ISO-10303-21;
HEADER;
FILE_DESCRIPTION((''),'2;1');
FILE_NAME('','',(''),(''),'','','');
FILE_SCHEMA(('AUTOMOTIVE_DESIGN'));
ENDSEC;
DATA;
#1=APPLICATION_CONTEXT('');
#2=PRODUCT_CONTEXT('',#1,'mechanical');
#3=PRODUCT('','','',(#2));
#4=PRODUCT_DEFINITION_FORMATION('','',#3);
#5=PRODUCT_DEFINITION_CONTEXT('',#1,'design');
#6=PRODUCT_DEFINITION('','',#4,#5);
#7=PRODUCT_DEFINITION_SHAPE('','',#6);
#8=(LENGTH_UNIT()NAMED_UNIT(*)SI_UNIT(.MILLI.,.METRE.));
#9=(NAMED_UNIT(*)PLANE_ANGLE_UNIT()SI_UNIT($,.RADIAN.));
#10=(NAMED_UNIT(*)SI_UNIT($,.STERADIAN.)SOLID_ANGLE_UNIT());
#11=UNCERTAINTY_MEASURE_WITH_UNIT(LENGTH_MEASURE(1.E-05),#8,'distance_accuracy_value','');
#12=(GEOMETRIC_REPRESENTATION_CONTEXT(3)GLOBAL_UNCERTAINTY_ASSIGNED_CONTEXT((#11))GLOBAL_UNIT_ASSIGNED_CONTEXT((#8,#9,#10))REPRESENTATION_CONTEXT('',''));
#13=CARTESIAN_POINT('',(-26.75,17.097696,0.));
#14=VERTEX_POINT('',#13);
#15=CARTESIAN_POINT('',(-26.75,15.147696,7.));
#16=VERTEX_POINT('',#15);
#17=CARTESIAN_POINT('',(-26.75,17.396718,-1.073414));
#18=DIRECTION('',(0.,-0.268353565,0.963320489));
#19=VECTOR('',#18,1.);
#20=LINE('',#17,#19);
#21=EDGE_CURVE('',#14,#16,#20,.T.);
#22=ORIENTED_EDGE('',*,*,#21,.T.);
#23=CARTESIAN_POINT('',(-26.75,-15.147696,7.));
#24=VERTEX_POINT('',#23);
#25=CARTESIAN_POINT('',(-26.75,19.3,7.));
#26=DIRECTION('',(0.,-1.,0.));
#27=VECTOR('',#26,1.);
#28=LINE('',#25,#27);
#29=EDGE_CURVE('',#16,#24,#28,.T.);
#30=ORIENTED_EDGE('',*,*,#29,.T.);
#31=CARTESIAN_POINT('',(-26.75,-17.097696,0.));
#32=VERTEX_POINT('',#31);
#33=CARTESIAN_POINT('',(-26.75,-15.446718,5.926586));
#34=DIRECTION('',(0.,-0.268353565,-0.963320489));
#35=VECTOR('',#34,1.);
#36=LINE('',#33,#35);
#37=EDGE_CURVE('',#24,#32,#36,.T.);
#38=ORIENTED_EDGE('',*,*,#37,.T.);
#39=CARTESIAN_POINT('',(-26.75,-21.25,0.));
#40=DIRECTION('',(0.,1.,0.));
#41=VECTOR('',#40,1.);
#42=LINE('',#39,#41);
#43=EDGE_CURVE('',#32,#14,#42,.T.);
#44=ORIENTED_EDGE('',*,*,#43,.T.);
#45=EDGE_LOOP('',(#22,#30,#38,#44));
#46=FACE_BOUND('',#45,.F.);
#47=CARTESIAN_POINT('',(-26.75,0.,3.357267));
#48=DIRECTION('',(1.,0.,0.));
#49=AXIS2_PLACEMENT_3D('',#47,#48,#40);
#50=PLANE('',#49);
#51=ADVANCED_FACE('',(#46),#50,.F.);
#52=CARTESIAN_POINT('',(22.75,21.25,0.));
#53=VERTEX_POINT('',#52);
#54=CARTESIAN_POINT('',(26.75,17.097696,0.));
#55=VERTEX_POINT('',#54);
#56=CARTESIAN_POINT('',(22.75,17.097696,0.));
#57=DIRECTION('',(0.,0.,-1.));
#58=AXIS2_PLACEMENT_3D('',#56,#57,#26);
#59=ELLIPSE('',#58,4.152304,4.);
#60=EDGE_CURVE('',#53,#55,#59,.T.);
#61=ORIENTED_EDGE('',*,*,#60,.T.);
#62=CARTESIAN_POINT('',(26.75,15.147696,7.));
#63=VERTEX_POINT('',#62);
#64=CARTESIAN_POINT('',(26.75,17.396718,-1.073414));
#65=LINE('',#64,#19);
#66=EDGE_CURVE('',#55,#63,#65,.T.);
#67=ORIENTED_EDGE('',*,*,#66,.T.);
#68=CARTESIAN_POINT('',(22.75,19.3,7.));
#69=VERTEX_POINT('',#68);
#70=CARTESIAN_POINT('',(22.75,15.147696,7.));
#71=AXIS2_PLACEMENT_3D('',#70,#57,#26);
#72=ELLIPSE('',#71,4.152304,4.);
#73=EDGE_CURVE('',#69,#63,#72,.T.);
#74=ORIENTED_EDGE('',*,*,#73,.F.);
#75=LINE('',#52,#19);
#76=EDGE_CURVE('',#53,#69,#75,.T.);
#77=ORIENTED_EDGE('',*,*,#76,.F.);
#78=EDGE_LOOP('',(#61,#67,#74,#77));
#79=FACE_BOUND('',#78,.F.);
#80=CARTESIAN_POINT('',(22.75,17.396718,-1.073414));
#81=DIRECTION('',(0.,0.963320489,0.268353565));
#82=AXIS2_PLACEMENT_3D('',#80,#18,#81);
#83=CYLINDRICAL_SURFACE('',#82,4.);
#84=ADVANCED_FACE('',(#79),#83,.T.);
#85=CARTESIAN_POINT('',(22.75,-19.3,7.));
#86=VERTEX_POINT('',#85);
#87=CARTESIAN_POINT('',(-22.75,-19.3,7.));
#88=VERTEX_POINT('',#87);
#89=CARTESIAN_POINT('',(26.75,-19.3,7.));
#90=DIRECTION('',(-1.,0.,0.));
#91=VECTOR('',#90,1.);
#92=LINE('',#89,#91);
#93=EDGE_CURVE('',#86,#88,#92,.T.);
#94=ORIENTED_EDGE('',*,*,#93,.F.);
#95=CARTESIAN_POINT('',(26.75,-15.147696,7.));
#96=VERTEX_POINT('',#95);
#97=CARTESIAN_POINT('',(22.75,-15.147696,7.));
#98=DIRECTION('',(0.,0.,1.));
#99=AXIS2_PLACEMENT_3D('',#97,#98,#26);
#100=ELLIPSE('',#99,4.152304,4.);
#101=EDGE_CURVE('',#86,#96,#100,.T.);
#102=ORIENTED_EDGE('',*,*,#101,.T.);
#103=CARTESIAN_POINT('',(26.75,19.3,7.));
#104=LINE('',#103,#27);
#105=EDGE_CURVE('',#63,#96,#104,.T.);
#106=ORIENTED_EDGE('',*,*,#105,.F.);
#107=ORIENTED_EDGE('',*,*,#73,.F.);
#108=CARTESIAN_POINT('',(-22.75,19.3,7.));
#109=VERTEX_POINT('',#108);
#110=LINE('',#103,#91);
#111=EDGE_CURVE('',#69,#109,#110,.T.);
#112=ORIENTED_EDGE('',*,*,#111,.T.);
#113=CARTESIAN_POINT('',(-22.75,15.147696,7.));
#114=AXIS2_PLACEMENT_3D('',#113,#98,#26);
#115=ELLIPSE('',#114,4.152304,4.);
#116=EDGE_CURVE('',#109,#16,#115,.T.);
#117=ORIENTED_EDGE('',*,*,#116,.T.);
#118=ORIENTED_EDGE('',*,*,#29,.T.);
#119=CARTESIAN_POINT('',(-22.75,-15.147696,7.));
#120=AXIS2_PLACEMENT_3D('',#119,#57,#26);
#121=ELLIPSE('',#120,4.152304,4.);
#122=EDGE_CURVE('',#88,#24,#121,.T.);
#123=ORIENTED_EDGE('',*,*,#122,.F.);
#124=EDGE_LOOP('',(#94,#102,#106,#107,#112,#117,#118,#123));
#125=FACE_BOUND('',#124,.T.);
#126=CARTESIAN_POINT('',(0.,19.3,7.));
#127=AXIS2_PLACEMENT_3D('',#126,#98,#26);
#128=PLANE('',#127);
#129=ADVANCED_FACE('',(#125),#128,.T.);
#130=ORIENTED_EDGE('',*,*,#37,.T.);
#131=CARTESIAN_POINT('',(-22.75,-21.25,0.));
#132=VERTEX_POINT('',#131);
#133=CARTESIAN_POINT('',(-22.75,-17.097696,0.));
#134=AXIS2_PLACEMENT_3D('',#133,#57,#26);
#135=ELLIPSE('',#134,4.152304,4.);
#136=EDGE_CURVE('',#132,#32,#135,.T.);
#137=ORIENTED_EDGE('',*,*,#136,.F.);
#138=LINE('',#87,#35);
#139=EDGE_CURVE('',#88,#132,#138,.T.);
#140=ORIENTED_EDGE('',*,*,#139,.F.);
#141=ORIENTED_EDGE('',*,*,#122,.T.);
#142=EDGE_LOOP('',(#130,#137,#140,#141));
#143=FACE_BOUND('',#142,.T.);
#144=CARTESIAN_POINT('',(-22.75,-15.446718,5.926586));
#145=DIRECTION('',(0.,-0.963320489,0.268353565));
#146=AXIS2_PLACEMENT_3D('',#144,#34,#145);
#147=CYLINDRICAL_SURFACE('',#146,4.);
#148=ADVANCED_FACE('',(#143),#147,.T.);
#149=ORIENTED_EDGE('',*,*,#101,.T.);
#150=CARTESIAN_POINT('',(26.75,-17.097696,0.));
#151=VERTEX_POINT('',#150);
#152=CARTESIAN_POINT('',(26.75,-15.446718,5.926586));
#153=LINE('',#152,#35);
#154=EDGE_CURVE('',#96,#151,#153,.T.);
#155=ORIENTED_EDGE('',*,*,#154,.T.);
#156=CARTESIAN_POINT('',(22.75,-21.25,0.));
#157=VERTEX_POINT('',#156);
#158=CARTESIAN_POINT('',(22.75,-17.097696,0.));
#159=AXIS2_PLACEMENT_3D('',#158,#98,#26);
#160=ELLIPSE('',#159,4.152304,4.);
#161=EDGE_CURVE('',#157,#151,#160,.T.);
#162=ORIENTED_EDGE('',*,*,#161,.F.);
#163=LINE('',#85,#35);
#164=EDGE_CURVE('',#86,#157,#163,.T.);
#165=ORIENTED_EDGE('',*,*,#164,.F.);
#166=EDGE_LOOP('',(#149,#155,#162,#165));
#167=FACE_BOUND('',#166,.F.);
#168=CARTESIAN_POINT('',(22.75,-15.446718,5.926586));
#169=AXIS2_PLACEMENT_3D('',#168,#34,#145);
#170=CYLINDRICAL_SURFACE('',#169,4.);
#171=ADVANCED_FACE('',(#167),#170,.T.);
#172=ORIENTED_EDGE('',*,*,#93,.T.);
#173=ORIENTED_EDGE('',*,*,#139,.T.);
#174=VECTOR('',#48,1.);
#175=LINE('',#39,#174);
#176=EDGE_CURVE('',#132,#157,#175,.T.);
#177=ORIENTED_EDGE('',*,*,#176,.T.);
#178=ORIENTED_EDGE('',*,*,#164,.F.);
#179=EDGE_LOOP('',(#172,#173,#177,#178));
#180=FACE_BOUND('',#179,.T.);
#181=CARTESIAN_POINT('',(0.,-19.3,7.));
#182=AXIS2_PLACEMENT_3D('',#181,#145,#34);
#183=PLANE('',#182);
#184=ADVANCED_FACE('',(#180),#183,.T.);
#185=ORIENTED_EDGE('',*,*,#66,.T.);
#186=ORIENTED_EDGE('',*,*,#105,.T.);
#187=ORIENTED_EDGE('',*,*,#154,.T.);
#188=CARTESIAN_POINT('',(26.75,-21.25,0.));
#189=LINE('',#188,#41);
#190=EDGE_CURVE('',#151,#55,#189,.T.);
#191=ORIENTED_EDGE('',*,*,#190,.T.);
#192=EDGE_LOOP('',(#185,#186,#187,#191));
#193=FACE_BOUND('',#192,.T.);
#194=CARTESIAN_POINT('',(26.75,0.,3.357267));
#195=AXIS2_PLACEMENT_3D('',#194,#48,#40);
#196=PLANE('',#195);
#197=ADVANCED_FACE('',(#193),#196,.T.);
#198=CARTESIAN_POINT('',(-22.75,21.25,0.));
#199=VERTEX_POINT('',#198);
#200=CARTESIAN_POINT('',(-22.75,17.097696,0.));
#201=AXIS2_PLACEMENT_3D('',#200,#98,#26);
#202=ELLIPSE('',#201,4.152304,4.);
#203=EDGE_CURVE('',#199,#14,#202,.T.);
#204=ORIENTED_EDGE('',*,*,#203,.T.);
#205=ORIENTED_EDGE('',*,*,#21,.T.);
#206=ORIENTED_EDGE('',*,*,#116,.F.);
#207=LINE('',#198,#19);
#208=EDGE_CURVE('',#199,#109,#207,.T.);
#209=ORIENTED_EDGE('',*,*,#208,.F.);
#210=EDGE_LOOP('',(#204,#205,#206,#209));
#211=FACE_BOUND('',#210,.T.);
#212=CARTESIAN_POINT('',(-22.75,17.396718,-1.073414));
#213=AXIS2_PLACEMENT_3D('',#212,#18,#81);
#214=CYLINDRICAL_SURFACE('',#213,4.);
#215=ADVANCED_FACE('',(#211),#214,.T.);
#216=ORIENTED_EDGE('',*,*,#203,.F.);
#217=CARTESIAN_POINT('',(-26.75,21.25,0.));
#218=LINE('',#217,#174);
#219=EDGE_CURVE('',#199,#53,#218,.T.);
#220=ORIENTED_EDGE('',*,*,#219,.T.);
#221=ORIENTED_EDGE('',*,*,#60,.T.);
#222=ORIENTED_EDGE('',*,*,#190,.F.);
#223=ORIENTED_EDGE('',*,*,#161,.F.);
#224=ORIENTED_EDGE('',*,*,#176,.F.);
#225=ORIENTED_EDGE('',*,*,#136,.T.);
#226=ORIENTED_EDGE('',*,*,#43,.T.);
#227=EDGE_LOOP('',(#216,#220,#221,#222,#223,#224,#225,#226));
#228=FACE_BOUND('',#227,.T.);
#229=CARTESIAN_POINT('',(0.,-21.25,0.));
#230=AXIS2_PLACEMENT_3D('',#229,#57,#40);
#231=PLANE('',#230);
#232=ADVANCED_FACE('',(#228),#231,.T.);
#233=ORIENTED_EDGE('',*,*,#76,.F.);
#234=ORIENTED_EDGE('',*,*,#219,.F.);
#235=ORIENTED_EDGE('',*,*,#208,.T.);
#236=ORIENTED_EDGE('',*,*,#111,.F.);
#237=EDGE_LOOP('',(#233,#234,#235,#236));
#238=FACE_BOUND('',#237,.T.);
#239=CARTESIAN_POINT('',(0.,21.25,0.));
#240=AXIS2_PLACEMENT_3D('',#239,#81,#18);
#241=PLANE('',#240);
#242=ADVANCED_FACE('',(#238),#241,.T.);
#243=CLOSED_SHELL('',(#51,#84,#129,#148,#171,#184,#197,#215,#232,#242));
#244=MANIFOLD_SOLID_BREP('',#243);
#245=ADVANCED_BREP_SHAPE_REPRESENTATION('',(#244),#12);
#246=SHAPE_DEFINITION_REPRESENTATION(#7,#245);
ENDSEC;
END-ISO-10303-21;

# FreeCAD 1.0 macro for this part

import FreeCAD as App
import Part
import Sketcher
from FreeCAD import Vector


def edges_at(feature, points):
    """Names of the edges that pass closest to the given points."""
    edges = feature.Shape.Edges
    near = lambda p: min(range(len(edges)), key=lambda i: edges[i].distToShape(Part.Vertex(*p))[0])
    return sorted({f"Edge{near(p) + 1}" for p in points})

doc = App.newDocument("Part")
params = doc.addObject("Spreadsheet::Sheet", "Params")
for row, (alias, value) in enumerate([
    ("sketch1_width", "42.5 mm"),
    ("sketch1_width2", "38.6 mm"),
    ("pad1_length", "53.5 mm"),
    ("fillet_radius", "4 mm"),
], start=1):
    params.set(f"A{row}", alias)
    params.set(f"B{row}", "=" + value)
    params.setAlias(f"B{row}", alias)

body = doc.addObject("PartDesign::Body", "Body")

# Sketch on YZ plane
sketch1 = body.newObject("Sketcher::SketchObject", "Sketch")
sketch1.AttachmentSupport = (doc.getObject("YZ_Plane"), [""])
sketch1.MapMode = "FlatFace"
sketch1.addGeometry([
    Part.LineSegment(Vector(-19, 7, 0), Vector(-21, 0, 0)),
    Part.LineSegment(Vector(-21, 0, 0), Vector(21, 0, 0)),
    Part.LineSegment(Vector(21, 0, 0), Vector(19, 7, 0)),
    Part.LineSegment(Vector(19, 7, 0), Vector(-19, 7, 0)),
], False)
sketch1.addConstraint([
    Sketcher.Constraint("Coincident", 0, 2, 1, 1),
    Sketcher.Constraint("Coincident", 1, 2, 2, 1),
    Sketcher.Constraint("Coincident", 2, 2, 3, 1),
    Sketcher.Constraint("Coincident", 3, 2, 0, 1),
    Sketcher.Constraint("Horizontal", 1),
    Sketcher.Constraint("Horizontal", 3),
    Sketcher.Constraint("Symmetric", 0, 2, 1, 2, -1, 1),
    Sketcher.Constraint("Equal", 0, 2),
    Sketcher.Constraint("DistanceX", 1, 1, 1, 2, 42.5),
    Sketcher.Constraint("DistanceX", 3, 2, 3, 1, 38.6),
    Sketcher.Constraint("DistanceY", -1, 1, 2, 2, 7.0),
])
sketch1.setExpression("Constraints[8]", "Params.sketch1_width")
sketch1.setExpression("Constraints[9]", "Params.sketch1_width2")
pad1 = body.newObject("PartDesign::Pad", "Pad")
pad1.Profile = sketch1
pad1.setExpression("Length", "Params.pad1_length")
pad1.Midplane = True
doc.recompute()

fillet = body.newObject("PartDesign::Fillet", "Fillet")
fillet.Base = (pad1, edges_at(pad1, [
    (-26.75, -20.275, 3.5),
    (26.75, -20.275, 3.5),
    (26.75, 20.275, 3.5),
    (-26.75, 20.275, 3.5),
]))
fillet.setExpression("Radius", "Params.fillet_radius")

doc.recompute()
